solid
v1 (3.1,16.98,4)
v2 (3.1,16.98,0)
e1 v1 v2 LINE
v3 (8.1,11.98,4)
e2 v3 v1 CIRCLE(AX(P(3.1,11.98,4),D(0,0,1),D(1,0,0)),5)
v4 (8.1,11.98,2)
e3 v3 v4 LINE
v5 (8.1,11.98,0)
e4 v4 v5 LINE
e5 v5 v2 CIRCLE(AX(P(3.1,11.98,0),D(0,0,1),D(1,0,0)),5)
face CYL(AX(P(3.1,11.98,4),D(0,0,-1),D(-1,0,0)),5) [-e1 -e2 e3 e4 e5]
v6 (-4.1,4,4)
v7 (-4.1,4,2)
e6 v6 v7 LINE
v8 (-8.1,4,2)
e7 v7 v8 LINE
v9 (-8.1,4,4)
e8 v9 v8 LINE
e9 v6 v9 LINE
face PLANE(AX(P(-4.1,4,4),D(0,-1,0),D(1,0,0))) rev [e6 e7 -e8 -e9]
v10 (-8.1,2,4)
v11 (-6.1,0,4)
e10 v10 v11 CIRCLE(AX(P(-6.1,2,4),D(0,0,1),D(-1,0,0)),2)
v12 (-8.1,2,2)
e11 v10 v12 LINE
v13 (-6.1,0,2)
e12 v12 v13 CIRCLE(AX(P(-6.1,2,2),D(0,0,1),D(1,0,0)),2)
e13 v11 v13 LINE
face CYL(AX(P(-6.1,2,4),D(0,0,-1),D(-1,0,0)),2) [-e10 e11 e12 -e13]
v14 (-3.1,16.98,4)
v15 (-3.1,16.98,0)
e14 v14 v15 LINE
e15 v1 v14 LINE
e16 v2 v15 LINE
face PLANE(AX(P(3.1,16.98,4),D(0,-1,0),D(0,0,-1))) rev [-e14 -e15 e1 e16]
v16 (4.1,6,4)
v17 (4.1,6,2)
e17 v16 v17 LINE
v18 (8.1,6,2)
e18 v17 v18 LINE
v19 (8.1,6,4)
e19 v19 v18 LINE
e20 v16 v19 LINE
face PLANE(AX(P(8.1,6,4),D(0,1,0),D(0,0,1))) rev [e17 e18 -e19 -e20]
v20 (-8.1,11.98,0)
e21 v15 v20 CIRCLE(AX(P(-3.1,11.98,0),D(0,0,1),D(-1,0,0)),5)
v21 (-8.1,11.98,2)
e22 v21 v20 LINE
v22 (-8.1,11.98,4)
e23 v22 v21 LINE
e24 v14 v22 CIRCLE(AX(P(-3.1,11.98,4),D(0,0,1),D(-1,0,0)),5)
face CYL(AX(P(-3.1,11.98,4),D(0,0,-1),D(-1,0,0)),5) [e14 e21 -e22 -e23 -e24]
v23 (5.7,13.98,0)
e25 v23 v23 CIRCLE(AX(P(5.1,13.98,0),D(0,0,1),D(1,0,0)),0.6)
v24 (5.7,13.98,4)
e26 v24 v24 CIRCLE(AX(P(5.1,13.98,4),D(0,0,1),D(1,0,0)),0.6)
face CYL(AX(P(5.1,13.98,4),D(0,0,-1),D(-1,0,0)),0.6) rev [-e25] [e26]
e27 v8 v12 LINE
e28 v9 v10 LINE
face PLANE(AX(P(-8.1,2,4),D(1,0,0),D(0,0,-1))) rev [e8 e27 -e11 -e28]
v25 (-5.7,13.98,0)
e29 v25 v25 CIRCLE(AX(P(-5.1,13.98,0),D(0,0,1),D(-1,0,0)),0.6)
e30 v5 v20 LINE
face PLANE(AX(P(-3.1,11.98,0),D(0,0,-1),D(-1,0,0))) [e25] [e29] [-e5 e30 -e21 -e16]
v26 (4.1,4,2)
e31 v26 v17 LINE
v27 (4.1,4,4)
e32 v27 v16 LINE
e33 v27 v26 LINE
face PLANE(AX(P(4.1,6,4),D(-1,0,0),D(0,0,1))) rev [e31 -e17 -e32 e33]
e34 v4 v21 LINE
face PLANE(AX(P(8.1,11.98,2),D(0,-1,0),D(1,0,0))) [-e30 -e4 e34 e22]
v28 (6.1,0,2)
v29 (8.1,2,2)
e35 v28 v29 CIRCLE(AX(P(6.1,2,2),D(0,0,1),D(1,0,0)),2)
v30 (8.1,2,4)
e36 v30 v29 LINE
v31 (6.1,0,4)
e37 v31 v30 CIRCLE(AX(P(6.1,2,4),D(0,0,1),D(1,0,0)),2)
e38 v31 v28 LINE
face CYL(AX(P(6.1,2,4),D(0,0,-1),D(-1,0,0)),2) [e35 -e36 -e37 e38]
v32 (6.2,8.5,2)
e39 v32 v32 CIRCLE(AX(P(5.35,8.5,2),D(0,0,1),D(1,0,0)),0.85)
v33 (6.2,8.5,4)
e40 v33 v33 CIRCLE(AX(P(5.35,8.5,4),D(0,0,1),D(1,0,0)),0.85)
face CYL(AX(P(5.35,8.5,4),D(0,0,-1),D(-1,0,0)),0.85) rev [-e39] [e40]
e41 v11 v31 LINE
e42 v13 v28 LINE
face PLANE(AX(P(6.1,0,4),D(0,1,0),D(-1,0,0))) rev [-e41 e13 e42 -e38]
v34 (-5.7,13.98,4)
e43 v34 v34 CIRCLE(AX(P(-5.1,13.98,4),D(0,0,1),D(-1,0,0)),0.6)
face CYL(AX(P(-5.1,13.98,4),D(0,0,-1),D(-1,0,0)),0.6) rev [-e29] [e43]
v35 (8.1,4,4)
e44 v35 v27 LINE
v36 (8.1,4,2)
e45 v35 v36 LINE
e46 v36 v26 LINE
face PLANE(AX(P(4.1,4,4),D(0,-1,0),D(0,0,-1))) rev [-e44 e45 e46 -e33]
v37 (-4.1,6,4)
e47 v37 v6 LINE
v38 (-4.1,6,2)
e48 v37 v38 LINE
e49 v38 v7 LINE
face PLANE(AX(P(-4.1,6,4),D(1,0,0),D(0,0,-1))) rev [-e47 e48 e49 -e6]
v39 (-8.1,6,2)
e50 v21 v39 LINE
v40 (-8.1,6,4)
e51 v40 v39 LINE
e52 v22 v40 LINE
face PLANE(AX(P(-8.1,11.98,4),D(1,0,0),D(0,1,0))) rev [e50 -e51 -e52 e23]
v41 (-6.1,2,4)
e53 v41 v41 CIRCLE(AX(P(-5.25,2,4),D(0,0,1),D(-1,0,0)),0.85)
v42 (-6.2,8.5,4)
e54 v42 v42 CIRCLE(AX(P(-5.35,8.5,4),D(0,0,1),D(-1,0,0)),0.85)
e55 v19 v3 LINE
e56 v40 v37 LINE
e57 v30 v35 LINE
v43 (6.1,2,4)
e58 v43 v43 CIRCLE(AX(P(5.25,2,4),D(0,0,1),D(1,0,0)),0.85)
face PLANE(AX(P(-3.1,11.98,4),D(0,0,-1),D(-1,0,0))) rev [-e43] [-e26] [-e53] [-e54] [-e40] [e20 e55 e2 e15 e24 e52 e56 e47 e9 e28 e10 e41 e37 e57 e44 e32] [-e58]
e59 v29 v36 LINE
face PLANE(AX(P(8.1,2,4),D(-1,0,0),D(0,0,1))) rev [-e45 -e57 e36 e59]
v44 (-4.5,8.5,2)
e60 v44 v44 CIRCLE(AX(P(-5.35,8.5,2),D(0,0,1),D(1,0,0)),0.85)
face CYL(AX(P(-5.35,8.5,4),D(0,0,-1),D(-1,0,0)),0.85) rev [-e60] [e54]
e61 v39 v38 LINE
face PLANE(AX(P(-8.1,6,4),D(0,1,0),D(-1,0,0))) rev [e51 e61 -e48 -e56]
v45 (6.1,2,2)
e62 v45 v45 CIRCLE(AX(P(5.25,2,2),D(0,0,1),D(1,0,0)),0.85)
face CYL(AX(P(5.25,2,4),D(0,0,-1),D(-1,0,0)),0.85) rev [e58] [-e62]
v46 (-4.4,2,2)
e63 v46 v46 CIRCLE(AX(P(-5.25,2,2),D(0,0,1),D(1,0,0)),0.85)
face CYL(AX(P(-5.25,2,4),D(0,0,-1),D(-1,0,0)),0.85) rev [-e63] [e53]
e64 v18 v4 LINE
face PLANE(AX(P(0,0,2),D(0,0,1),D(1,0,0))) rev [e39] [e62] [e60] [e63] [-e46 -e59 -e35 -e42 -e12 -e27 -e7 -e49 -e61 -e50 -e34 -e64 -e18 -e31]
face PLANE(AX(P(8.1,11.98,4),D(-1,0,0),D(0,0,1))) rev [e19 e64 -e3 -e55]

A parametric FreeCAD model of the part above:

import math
import FreeCAD as App
import Part
import Sketcher

doc = App.newDocument("Part")
body = doc.addObject("PartDesign::Body", "Body")

sketch1 = body.newObject("Sketcher::SketchObject", "Sketch")
sketch1.AttachmentSupport = (doc.getObject("XY_Plane"), [""])
sketch1.MapMode = "FlatFace"
sketch1.addGeometry(Part.LineSegment(App.Vector(3.1, 17, 0), App.Vector(-3.1, 17, 0)), False)
sketch1.addGeometry(Part.ArcOfCircle(Part.Circle(App.Vector(-3.1, 12, 0), App.Vector(0, 0, 1), 5), math.radians(90), math.radians(180)), False)
sketch1.addGeometry(Part.LineSegment(App.Vector(-8.1, 12, 0), App.Vector(-8.1, 6, 0)), False)
sketch1.addGeometry(Part.LineSegment(App.Vector(-8.1, 6, 0), App.Vector(-4.1, 6, 0)), False)
sketch1.addGeometry(Part.LineSegment(App.Vector(-4.1, 6, 0), App.Vector(-4.1, 4, 0)), False)
sketch1.addGeometry(Part.LineSegment(App.Vector(-4.1, 4, 0), App.Vector(-8.1, 4, 0)), False)
sketch1.addGeometry(Part.LineSegment(App.Vector(-8.1, 4, 0), App.Vector(-8.1, 2, 0)), False)
sketch1.addGeometry(Part.ArcOfCircle(Part.Circle(App.Vector(-6.1, 2, 0), App.Vector(0, 0, 1), 2), math.radians(-180), math.radians(-90)), False)
sketch1.addGeometry(Part.LineSegment(App.Vector(-6.1, 0, 0), App.Vector(6.1, 0, 0)), False)
sketch1.addGeometry(Part.ArcOfCircle(Part.Circle(App.Vector(6.1, 2, 0), App.Vector(0, 0, 1), 2), math.radians(-90), math.radians(0)), False)
sketch1.addGeometry(Part.LineSegment(App.Vector(8.1, 2, 0), App.Vector(8.1, 4, 0)), False)
sketch1.addGeometry(Part.LineSegment(App.Vector(8.1, 4, 0), App.Vector(4.1, 4, 0)), False)
sketch1.addGeometry(Part.LineSegment(App.Vector(4.1, 4, 0), App.Vector(4.1, 6, 0)), False)
sketch1.addGeometry(Part.LineSegment(App.Vector(4.1, 6, 0), App.Vector(8.1, 6, 0)), False)
sketch1.addGeometry(Part.LineSegment(App.Vector(8.1, 6, 0), App.Vector(8.1, 12, 0)), False)
sketch1.addGeometry(Part.ArcOfCircle(Part.Circle(App.Vector(3.1, 12, 0), App.Vector(0, 0, 1), 5), math.radians(0), math.radians(90)), False)
sketch1.addGeometry(Part.Circle(App.Vector(-5.2, 2, 0), App.Vector(0, 0, 1), 0.8), False)
sketch1.addGeometry(Part.Circle(App.Vector(5.2, 2, 0), App.Vector(0, 0, 1), 0.8), False)
sketch1.addGeometry(Part.Circle(App.Vector(-5.3, 8.5, 0), App.Vector(0, 0, 1), 0.8), False)
sketch1.addGeometry(Part.Circle(App.Vector(-5.1, 14, 0), App.Vector(0, 0, 1), 0.6), False)
sketch1.addGeometry(Part.Circle(App.Vector(5.3, 8.5, 0), App.Vector(0, 0, 1), 0.8), False)
sketch1.addGeometry(Part.Circle(App.Vector(5.1, 14, 0), App.Vector(0, 0, 1), 0.6), False)
sketch1.addConstraint(Sketcher.Constraint("Tangent", 0, 2, 1, 1))
sketch1.addConstraint(Sketcher.Constraint("Tangent", 1, 2, 2, 1))
sketch1.addConstraint(Sketcher.Constraint("Coincident", 2, 2, 3, 1))
sketch1.addConstraint(Sketcher.Constraint("Coincident", 3, 2, 4, 1))
sketch1.addConstraint(Sketcher.Constraint("Coincident", 4, 2, 5, 1))
sketch1.addConstraint(Sketcher.Constraint("Coincident", 5, 2, 6, 1))
sketch1.addConstraint(Sketcher.Constraint("Tangent", 6, 2, 7, 1))
sketch1.addConstraint(Sketcher.Constraint("Tangent", 7, 2, 8, 1))
sketch1.addConstraint(Sketcher.Constraint("Tangent", 8, 2, 9, 1))
sketch1.addConstraint(Sketcher.Constraint("Tangent", 9, 2, 10, 1))
sketch1.addConstraint(Sketcher.Constraint("Coincident", 10, 2, 11, 1))
sketch1.addConstraint(Sketcher.Constraint("Coincident", 11, 2, 12, 1))
sketch1.addConstraint(Sketcher.Constraint("Coincident", 12, 2, 13, 1))
sketch1.addConstraint(Sketcher.Constraint("Coincident", 13, 2, 14, 1))
sketch1.addConstraint(Sketcher.Constraint("Tangent", 14, 2, 15, 1))
sketch1.addConstraint(Sketcher.Constraint("Tangent", 15, 2, 0, 1))
sketch1.addConstraint(Sketcher.Constraint("Horizontal", 0))
sketch1.addConstraint(Sketcher.Constraint("Vertical", 2))
sketch1.addConstraint(Sketcher.Constraint("Horizontal", 3))
sketch1.addConstraint(Sketcher.Constraint("Vertical", 4))
sketch1.addConstraint(Sketcher.Constraint("Horizontal", 5))
sketch1.addConstraint(Sketcher.Constraint("Vertical", 6))
sketch1.addConstraint(Sketcher.Constraint("Horizontal", 8))
sketch1.addConstraint(Sketcher.Constraint("Vertical", 10))
sketch1.addConstraint(Sketcher.Constraint("Horizontal", 11))
sketch1.addConstraint(Sketcher.Constraint("Vertical", 12))
sketch1.addConstraint(Sketcher.Constraint("Horizontal", 13))
sketch1.addConstraint(Sketcher.Constraint("Vertical", 14))
sketch1.addConstraint(Sketcher.Constraint("Equal", 7, 9))
sketch1.addConstraint(Sketcher.Constraint("Equal", 1, 15))
sketch1.addConstraint(Sketcher.Constraint("Equal", 16, 17))
sketch1.addConstraint(Sketcher.Constraint("Equal", 17, 18))
sketch1.addConstraint(Sketcher.Constraint("Equal", 18, 20))
sketch1.addConstraint(Sketcher.Constraint("Equal", 19, 21))
sketch1.addConstraint(Sketcher.Constraint("Symmetric", 7, 2, 8, 2, -1, 1))
sketch1.addConstraint(Sketcher.Constraint("Symmetric", 16, 3, 17, 3, -2))
sketch1.addConstraint(Sketcher.Constraint("Symmetric", 18, 3, 20, 3, -2))
sketch1.addConstraint(Sketcher.Constraint("Symmetric", 19, 3, 21, 3, -2))
sketch1.addConstraint(Sketcher.Constraint("Symmetric", 4, 2, 11, 2, -2))
sketch1.addConstraint(Sketcher.Constraint("Symmetric", 2, 2, 13, 2, -2))
sketch1.addConstraint(Sketcher.Constraint("Horizontal", 9, 3, 16, 3))
sketch1.addConstraint(Sketcher.Constraint("Vertical", 2, 2, 5, 2))
sketch1.addConstraint(Sketcher.Constraint("Equal", 4, 6))
sketch1.addConstraint(Sketcher.Constraint("Radius", 1, 5.0))
sketch1.addConstraint(Sketcher.Constraint("Radius", 7, 2.0))
sketch1.addConstraint(Sketcher.Constraint("Diameter", 16, 1.7))
sketch1.addConstraint(Sketcher.Constraint("Diameter", 19, 1.2))
sketch1.addConstraint(Sketcher.Constraint("DistanceX", 3, 1, 3, 2, 4.0))
sketch1.addConstraint(Sketcher.Constraint("DistanceY", 4, 2, 4, 1, 2.0))
sketch1.addConstraint(Sketcher.Constraint("DistanceX", 0, 2, 0, 1, 6.2))
sketch1.addConstraint(Sketcher.Constraint("DistanceX", 19, 3, 1, 3, 2.0))
sketch1.addConstraint(Sketcher.Constraint("DistanceY", 1, 3, 19, 3, 2.0))
sketch1.addConstraint(Sketcher.Constraint("DistanceY", 2, 2, 2, 1, 5.98))
sketch1.addConstraint(Sketcher.Constraint("DistanceY", -1, 1, 18, 3, 8.5))
sketch1.addConstraint(Sketcher.Constraint("DistanceX", 16, 3, 17, 3, 10.5))
sketch1.addConstraint(Sketcher.Constraint("DistanceX", 18, 3, 16, 3, 0.1))
pad1 = body.newObject("PartDesign::Pad", "Pad")
pad1.Profile = sketch1
pad1.Length = 4

sketch2 = body.newObject("Sketcher::SketchObject", "Sketch001")
sketch2.AttachmentSupport = (doc.getObject("XY_Plane"), [""])
sketch2.MapMode = "FlatFace"
sketch2.addGeometry(Part.LineSegment(App.Vector(-8, 12, 0), App.Vector(-8, 0, 0)), False)
sketch2.addGeometry(Part.LineSegment(App.Vector(-8, 0, 0), App.Vector(8, 0, 0)), False)
sketch2.addGeometry(Part.LineSegment(App.Vector(8, 0, 0), App.Vector(8, 12, 0)), False)
sketch2.addGeometry(Part.LineSegment(App.Vector(8, 12, 0), App.Vector(-8, 12, 0)), False)
sketch2.addConstraint(Sketcher.Constraint("Coincident", 0, 2, 1, 1))
sketch2.addConstraint(Sketcher.Constraint("Coincident", 1, 2, 2, 1))
sketch2.addConstraint(Sketcher.Constraint("Coincident", 2, 2, 3, 1))
sketch2.addConstraint(Sketcher.Constraint("Coincident", 3, 2, 0, 1))
sketch2.addConstraint(Sketcher.Constraint("Vertical", 0))
sketch2.addConstraint(Sketcher.Constraint("Horizontal", 1))
sketch2.addConstraint(Sketcher.Constraint("Vertical", 2))
sketch2.addConstraint(Sketcher.Constraint("Horizontal", 3))
sketch2.addConstraint(Sketcher.Constraint("Symmetric", 0, 2, 1, 2, -1, 1))
sketch2.addConstraint(Sketcher.Constraint("DistanceX", 1, 1, 1, 2, 16.2))
sketch2.addConstraint(Sketcher.Constraint("DistanceY", 0, 2, 0, 1, 11.98))
pocket1 = body.newObject("PartDesign::Pocket", "Pocket")
pocket1.Profile = sketch2
pocket1.Length = 2
pocket1.Reversed = True

doc.recompute()
